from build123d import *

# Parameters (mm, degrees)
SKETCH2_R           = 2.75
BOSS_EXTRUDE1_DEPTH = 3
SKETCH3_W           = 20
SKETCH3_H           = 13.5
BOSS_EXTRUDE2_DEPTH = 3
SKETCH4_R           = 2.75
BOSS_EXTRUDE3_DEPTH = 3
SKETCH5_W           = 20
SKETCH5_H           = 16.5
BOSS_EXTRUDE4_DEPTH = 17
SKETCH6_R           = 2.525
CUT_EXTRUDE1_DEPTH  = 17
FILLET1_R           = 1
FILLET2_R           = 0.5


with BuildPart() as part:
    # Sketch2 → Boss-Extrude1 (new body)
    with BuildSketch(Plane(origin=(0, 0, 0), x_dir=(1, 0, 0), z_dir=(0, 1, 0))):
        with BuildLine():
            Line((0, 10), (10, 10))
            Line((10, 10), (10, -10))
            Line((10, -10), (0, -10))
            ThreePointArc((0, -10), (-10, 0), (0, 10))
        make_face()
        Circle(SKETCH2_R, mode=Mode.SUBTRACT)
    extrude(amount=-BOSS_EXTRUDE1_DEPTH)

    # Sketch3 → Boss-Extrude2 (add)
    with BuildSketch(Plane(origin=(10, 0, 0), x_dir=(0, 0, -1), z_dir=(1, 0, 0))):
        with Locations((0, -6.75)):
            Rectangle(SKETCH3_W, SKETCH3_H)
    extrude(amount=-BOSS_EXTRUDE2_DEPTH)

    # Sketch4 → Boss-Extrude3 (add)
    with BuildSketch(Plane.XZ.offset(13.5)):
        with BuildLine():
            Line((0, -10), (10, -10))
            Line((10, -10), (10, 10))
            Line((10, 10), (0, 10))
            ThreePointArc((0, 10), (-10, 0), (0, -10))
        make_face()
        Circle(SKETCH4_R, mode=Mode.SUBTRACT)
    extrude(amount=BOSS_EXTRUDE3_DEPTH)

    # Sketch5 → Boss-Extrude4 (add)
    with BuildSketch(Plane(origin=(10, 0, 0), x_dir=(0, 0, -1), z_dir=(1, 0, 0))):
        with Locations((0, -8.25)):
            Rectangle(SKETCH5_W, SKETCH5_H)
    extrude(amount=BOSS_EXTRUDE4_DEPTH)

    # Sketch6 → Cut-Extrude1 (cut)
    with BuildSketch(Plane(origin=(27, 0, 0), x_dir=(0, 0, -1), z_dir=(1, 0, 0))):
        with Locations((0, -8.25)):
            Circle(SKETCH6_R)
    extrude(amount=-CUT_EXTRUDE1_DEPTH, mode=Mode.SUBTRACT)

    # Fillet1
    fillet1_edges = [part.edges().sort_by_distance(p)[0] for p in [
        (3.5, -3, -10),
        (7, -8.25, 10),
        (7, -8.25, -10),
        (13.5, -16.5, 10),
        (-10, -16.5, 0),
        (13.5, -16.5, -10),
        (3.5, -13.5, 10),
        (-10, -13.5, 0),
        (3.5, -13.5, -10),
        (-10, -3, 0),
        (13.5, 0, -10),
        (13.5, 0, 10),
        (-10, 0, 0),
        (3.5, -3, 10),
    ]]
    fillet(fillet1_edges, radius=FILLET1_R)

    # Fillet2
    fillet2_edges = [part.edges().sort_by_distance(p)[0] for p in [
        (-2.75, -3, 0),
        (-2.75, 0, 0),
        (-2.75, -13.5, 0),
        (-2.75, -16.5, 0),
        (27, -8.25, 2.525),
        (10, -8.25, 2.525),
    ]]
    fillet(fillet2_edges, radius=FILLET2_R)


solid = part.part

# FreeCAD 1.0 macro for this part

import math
import FreeCAD as App
import Part
import Sketcher
from FreeCAD import Vector


def edges_at(feature, points):
    """Names of the edges that pass closest to the given points."""
    edges = feature.Shape.Edges
    near = lambda p: min(range(len(edges)), key=lambda i: edges[i].distToShape(Part.Vertex(*p))[0])
    return sorted({f"Edge{near(p) + 1}" for p in points})

doc = App.newDocument("Part")
body = doc.addObject("PartDesign::Body", "Body")

sketch1 = doc.addObject("Sketcher::SketchObject", "Sketch")
body.addObject(sketch1)
sketch1.AttachmentSupport = (doc.XZ_Plane, [""])
sketch1.MapMode = "FlatFace"
sketch1.addGeometry([
    Part.LineSegment(Vector(10, -10, 0), Vector(0, -10, 0)),
    Part.ArcOfCircle(Part.Circle(Vector(0, 0, 0), Vector(0, 0, 1), 10), math.radians(90), math.radians(270)),
    Part.LineSegment(Vector(0, 10, 0), Vector(10, 10, 0)),
    Part.LineSegment(Vector(10, 10, 0), Vector(10, -10, 0)),
    Part.Circle(Vector(0, 0, 0), Vector(0, 0, 1), 2.8),
], False)
sketch1.addConstraint([
    Sketcher.Constraint("Tangent", 0, 2, 1, 2),
    Sketcher.Constraint("Tangent", 1, 1, 2, 1),
    Sketcher.Constraint("Coincident", 2, 2, 3, 1),
    Sketcher.Constraint("Coincident", 3, 2, 0, 1),
    Sketcher.Constraint("Horizontal", 0),
    Sketcher.Constraint("Horizontal", 2),
    Sketcher.Constraint("Vertical", 3),
    Sketcher.Constraint("Coincident", 1, 3, -1, 1),
    Sketcher.Constraint("Coincident", 4, 3, -1, 1),
    Sketcher.Constraint("Radius", 1, 10.0),
    Sketcher.Constraint("Diameter", 4, 5.5),
    Sketcher.Constraint("DistanceX", 0, 2, 0, 1, 10.0),
])
pad1 = doc.addObject("PartDesign::Pad", "Pad")
body.addObject(pad1)
pad1.Profile = sketch1
pad1.Length = 3

sketch2 = doc.addObject("Sketcher::SketchObject", "Sketch001")
body.addObject(sketch2)
sketch2.AttachmentSupport = (doc.YZ_Plane, [""])
sketch2.MapMode = "FlatFace"
sketch2.AttachmentOffset = App.Placement(Vector(0, 0, 10), App.Rotation())
sketch2.addGeometry([
    Part.LineSegment(Vector(0, 10, 0), Vector(-14, 10, 0)),
    Part.LineSegment(Vector(-14, 10, 0), Vector(-14, -10, 0)),
    Part.LineSegment(Vector(-14, -10, 0), Vector(0, -10, 0)),
    Part.LineSegment(Vector(0, -10, 0), Vector(0, 10, 0)),
], False)
sketch2.addConstraint([
    Sketcher.Constraint("Coincident", 0, 2, 1, 1),
    Sketcher.Constraint("Coincident", 1, 2, 2, 1),
    Sketcher.Constraint("Coincident", 2, 2, 3, 1),
    Sketcher.Constraint("Coincident", 3, 2, 0, 1),
    Sketcher.Constraint("Horizontal", 0),
    Sketcher.Constraint("Vertical", 1),
    Sketcher.Constraint("Horizontal", 2),
    Sketcher.Constraint("Vertical", 3),
    Sketcher.Constraint("Symmetric", 2, 2, 3, 2, -1, 1),
    Sketcher.Constraint("DistanceY", 1, 2, 1, 1, 20.0),
    Sketcher.Constraint("DistanceX", 0, 2, 0, 1, 13.5),
])
pad2 = doc.addObject("PartDesign::Pad", "Pad001")
body.addObject(pad2)
pad2.Profile = sketch2
pad2.Length = 3
pad2.Reversed = True

sketch3 = doc.addObject("Sketcher::SketchObject", "Sketch002")
body.addObject(sketch3)
sketch3.AttachmentSupport = (doc.XZ_Plane, [""])
sketch3.MapMode = "FlatFace"
sketch3.AttachmentOffset = App.Placement(Vector(0, 0, 13.5), App.Rotation())
sketch3.addGeometry([
    Part.LineSegment(Vector(0, -10, 0), Vector(10, -10, 0)),
    Part.LineSegment(Vector(10, -10, 0), Vector(10, 10, 0)),
    Part.LineSegment(Vector(10, 10, 0), Vector(0, 10, 0)),
    Part.ArcOfCircle(Part.Circle(Vector(0, 0, 0), Vector(0, 0, 1), 10), math.radians(90), math.radians(270)),
    Part.Circle(Vector(0, 0, 0), Vector(0, 0, 1), 2.8),
], False)
sketch3.addConstraint([
    Sketcher.Constraint("Coincident", 0, 2, 1, 1),
    Sketcher.Constraint("Coincident", 1, 2, 2, 1),
    Sketcher.Constraint("Tangent", 2, 2, 3, 1),
    Sketcher.Constraint("Tangent", 3, 2, 0, 1),
    Sketcher.Constraint("Horizontal", 0),
    Sketcher.Constraint("Vertical", 1),
    Sketcher.Constraint("Horizontal", 2),
    Sketcher.Constraint("Coincident", 3, 3, -1, 1),
    Sketcher.Constraint("Coincident", 4, 3, -1, 1),
    Sketcher.Constraint("Radius", 3, 10.0),
    Sketcher.Constraint("Diameter", 4, 5.5),
    Sketcher.Constraint("DistanceX", 0, 1, 0, 2, 10.0),
])
pad3 = doc.addObject("PartDesign::Pad", "Pad002")
body.addObject(pad3)
pad3.Profile = sketch3
pad3.Length = 3

sketch4 = doc.addObject("Sketcher::SketchObject", "Sketch003")
body.addObject(sketch4)
sketch4.AttachmentSupport = (doc.YZ_Plane, [""])
sketch4.MapMode = "FlatFace"
sketch4.AttachmentOffset = App.Placement(Vector(0, 0, 10), App.Rotation())
sketch4.addGeometry([
    Part.LineSegment(Vector(0, 10, 0), Vector(-16, 10, 0)),
    Part.LineSegment(Vector(-16, 10, 0), Vector(-16, -10, 0)),
    Part.LineSegment(Vector(-16, -10, 0), Vector(0, -10, 0)),
    Part.LineSegment(Vector(0, -10, 0), Vector(0, 10, 0)),
], False)
sketch4.addConstraint([
    Sketcher.Constraint("Coincident", 0, 2, 1, 1),
    Sketcher.Constraint("Coincident", 1, 2, 2, 1),
    Sketcher.Constraint("Coincident", 2, 2, 3, 1),
    Sketcher.Constraint("Coincident", 3, 2, 0, 1),
    Sketcher.Constraint("Horizontal", 0),
    Sketcher.Constraint("Vertical", 1),
    Sketcher.Constraint("Horizontal", 2),
    Sketcher.Constraint("Vertical", 3),
    Sketcher.Constraint("Symmetric", 2, 2, 3, 2, -1, 1),
    Sketcher.Constraint("DistanceY", 1, 2, 1, 1, 20.0),
    Sketcher.Constraint("DistanceX", 0, 2, 0, 1, 16.5),
])
pad4 = doc.addObject("PartDesign::Pad", "Pad003")
body.addObject(pad4)
pad4.Profile = sketch4
pad4.Length = 17

sketch5 = doc.addObject("Sketcher::SketchObject", "Sketch004")
body.addObject(sketch5)
sketch5.AttachmentSupport = (doc.YZ_Plane, [""])
sketch5.MapMode = "FlatFace"
sketch5.AttachmentOffset = App.Placement(Vector(0, 0, 27), App.Rotation())
sketch5.addGeometry(Part.Circle(Vector(-8.2, 0, 0), Vector(0, 0, 1), 2.5), False)
sketch5.addConstraint([
    Sketcher.Constraint("PointOnObject", 0, 3, -1),
    Sketcher.Constraint("Diameter", 0, 5.05),
    Sketcher.Constraint("DistanceX", 0, 3, -1, 1, 8.25),
])
pocket1 = doc.addObject("PartDesign::Pocket", "Pocket")
body.addObject(pocket1)
pocket1.Profile = sketch5
pocket1.Length = 17
doc.recompute()

fillet = doc.addObject("PartDesign::Fillet", "Fillet")
body.addObject(fillet)
fillet.Base = (pocket1, edges_at(pocket1, [
    (3.5, -3, -10),
    (7, -8.25, 10),
    (7, -8.25, -10),
    (13.5, -16.5, 10),
    (-10, -16.5, 0),
    (13.5, -16.5, -10),
    (3.5, -13.5, 10),
    (-10, -13.5, 0),
    (3.5, -13.5, -10),
    (-10, -3, 0),
    (13.5, 0, -10),
    (13.5, 0, 10),
    (-10, 0, 0),
    (3.5, -3, 10),
]))
fillet.Radius = 1
doc.recompute()

fillet2 = doc.addObject("PartDesign::Fillet", "Fillet001")
body.addObject(fillet2)
fillet2.Base = (fillet, edges_at(fillet, [
    (-2.75, -3, 0),
    (-2.75, 0, 0),
    (-2.75, -13.5, 0),
    (-2.75, -16.5, 0),
    (27, -8.25, 2.525),
    (10, -8.25, 2.525),
]))
fillet2.Radius = 0.5

doc.recompute()
